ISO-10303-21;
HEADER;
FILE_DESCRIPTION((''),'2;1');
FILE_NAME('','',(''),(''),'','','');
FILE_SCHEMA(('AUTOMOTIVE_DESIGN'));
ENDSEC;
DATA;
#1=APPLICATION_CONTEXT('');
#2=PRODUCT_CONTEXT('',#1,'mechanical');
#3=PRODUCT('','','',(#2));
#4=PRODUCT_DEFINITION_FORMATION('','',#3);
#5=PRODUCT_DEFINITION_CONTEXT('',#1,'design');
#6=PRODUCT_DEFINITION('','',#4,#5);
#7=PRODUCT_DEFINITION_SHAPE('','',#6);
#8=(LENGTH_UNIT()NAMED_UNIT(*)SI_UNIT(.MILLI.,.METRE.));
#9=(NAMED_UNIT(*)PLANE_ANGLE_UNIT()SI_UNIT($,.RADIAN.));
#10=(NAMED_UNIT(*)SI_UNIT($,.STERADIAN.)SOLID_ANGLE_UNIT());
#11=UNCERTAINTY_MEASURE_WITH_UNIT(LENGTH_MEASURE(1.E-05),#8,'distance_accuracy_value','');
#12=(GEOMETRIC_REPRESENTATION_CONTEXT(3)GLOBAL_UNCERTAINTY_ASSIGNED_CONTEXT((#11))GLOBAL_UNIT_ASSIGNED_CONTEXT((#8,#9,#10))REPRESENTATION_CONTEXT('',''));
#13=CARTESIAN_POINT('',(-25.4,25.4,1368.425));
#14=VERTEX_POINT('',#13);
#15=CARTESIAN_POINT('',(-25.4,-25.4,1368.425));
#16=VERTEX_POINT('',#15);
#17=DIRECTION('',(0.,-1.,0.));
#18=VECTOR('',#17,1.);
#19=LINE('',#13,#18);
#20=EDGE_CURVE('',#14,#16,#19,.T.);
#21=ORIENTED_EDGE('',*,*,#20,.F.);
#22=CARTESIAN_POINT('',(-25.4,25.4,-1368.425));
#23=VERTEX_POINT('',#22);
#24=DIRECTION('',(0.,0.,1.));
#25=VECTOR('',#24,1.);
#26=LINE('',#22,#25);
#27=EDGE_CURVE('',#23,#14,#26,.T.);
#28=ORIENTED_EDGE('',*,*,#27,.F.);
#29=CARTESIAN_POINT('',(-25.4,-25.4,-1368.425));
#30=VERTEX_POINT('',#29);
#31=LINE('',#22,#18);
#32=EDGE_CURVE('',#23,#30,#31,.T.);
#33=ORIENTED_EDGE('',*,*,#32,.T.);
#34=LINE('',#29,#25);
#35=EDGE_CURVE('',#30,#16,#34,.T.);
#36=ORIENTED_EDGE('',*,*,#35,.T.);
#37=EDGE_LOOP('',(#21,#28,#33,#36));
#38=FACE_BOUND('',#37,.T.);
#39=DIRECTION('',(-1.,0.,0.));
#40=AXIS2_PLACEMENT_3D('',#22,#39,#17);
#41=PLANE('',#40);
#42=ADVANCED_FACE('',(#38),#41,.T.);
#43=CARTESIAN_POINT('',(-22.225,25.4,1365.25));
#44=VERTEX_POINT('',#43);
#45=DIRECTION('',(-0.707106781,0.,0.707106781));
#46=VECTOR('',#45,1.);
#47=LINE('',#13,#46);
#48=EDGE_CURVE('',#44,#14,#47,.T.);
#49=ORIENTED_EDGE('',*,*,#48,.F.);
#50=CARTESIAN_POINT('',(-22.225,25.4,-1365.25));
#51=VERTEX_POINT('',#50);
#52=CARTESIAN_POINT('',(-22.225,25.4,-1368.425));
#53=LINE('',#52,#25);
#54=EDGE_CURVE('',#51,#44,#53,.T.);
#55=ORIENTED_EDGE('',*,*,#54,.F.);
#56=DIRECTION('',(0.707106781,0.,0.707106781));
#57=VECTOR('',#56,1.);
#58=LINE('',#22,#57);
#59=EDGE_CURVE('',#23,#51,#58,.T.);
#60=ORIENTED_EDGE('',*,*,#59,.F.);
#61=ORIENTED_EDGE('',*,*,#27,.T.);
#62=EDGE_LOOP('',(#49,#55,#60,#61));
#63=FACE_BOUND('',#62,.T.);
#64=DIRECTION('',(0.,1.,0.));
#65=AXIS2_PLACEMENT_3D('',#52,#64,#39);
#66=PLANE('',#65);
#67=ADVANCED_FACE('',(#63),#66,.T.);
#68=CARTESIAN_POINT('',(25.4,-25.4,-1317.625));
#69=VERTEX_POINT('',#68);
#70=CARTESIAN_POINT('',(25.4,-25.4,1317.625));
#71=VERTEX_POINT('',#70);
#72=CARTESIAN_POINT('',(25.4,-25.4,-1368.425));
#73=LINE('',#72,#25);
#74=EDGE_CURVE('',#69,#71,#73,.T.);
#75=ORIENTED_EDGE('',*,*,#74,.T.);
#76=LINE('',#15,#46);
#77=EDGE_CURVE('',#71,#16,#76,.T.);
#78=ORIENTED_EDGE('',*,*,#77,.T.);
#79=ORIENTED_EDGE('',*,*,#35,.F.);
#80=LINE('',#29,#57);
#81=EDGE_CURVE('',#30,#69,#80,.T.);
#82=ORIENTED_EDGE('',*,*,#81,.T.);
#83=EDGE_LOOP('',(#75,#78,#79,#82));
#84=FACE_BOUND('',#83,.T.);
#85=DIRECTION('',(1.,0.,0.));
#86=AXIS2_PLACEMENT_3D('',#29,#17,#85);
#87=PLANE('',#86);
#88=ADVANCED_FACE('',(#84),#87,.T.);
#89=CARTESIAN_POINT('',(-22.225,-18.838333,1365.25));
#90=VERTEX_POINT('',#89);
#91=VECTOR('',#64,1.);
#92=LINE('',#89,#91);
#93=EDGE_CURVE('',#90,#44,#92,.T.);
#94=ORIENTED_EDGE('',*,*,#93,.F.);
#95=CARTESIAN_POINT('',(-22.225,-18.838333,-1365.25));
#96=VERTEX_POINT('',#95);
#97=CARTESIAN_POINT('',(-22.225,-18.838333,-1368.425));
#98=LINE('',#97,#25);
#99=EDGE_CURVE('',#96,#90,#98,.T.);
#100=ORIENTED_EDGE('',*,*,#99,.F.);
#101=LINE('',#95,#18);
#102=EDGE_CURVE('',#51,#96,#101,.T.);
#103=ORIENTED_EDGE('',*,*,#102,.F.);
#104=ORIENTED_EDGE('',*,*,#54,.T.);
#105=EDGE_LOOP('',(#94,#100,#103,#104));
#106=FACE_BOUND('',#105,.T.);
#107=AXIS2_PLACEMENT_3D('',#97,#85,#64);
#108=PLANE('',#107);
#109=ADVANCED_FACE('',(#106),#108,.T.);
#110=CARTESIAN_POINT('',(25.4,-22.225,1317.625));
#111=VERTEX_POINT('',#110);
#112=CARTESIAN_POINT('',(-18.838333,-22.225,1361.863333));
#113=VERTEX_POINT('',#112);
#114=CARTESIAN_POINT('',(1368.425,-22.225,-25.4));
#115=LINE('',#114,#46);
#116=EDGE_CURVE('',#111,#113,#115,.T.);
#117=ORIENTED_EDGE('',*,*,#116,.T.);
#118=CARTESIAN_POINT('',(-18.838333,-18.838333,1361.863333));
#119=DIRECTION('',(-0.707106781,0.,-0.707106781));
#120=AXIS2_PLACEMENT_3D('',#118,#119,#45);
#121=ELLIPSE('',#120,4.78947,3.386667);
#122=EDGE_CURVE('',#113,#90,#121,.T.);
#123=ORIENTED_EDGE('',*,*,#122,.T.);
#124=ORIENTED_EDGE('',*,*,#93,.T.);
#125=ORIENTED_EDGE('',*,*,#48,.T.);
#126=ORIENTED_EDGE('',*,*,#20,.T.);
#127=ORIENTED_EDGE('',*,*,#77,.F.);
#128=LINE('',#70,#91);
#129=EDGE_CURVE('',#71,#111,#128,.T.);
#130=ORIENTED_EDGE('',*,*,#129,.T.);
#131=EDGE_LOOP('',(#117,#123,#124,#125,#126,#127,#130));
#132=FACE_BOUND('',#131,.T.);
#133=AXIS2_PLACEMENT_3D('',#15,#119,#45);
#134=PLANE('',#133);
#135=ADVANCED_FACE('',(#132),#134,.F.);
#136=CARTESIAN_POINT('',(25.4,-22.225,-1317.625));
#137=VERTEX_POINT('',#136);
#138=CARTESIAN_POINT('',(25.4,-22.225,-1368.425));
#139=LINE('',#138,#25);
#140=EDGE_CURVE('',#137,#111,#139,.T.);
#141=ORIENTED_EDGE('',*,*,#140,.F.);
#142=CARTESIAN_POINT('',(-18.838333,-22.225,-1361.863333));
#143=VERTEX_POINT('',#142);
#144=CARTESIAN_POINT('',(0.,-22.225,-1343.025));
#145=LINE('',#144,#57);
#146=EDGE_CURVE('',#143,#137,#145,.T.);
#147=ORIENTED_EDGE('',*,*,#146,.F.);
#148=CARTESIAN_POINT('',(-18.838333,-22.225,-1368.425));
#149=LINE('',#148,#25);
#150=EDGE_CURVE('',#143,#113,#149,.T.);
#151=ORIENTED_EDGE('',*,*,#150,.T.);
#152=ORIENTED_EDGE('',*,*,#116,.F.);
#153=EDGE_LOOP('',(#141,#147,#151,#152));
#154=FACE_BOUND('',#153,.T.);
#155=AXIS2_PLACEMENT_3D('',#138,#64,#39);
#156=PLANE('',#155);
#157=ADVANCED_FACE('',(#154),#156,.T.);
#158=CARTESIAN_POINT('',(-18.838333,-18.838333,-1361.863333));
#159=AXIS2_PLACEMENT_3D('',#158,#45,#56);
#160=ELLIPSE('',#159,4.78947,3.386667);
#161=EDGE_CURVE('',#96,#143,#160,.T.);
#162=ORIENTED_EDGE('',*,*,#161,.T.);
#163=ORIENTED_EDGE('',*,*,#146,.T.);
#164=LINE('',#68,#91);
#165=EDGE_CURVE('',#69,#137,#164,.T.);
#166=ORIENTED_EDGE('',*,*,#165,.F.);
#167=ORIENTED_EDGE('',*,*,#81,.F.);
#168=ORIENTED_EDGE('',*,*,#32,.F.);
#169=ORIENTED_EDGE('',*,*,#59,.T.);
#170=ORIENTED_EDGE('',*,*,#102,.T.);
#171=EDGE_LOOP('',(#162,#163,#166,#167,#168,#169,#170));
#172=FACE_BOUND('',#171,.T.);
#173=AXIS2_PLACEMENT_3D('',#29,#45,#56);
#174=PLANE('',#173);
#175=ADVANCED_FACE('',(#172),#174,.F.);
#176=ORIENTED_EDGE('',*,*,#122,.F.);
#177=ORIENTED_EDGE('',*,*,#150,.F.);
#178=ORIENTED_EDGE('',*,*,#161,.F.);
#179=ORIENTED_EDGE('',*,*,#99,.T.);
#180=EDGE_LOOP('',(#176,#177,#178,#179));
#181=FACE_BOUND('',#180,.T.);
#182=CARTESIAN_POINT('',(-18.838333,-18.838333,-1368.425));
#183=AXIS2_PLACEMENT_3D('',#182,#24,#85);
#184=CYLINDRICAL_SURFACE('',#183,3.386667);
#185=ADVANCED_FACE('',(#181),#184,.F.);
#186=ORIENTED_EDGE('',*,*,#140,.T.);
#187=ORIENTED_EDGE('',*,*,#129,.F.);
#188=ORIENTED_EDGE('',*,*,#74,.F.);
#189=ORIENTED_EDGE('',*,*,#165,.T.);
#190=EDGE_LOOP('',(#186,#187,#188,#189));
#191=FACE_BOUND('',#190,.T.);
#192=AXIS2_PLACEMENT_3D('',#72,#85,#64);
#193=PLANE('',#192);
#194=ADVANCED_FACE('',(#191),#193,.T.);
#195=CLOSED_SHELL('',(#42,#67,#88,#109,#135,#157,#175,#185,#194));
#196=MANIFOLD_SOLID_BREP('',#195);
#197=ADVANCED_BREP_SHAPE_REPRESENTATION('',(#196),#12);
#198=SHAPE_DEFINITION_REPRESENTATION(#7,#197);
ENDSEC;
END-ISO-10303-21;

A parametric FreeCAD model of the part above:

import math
import FreeCAD as App
import Part
import Sketcher

V = App.Vector
Q = App.Units.Quantity


def add_polygon(sketch, points):
    """Adds a closed chain of lines whose ends are joined by coincident constraints."""
    first, n = sketch.GeometryCount, len(points)
    for a, b in zip(points, points[1:] + points[:1]):
        sketch.addGeometry(Part.LineSegment(App.Vector(*a, 0), App.Vector(*b, 0)), False)
    for i in range(n):
        sketch.addConstraint(Sketcher.Constraint("Coincident", first + i, 2, first + (i + 1) % n, 1))

doc = App.newDocument("Part")
body = doc.addObject("PartDesign::Body", "Body")

# Sketch on XY plane
sketch1 = body.newObject("Sketcher::SketchObject", "Sketch")
sketch1.AttachmentSupport = (doc.getObject("XY_Plane"), [""])
sketch1.MapMode = "FlatFace"
sketch1.addGeometry([
    Part.LineSegment(V(-22.225, -18.838333, 0), V(-22.225, 25.4, 0)),  # 0
    Part.LineSegment(V(-22.225, 25.4, 0), V(-25.4, 25.4, 0)),  # 1
    Part.LineSegment(V(-25.4, 25.4, 0), V(-25.4, -25.4, 0)),  # 2
    Part.LineSegment(V(-25.4, -25.4, 0), V(25.4, -25.4, 0)),  # 3
    Part.LineSegment(V(25.4, -25.4, 0), V(25.4, -22.225, 0)),  # 4
    Part.LineSegment(V(25.4, -22.225, 0), V(-18.838333, -22.225, 0)),  # 5
    Part.ArcOfCircle(Part.Circle(V(-18.838333, -18.838333, 0), V(0, 0, 1), 3.386667), math.radians(180), math.radians(270)),  # 6
], False)
sketch1.addConstraint([
    Sketcher.Constraint("Coincident", 0, 2, 1, 1),
    Sketcher.Constraint("Coincident", 1, 2, 2, 1),
    Sketcher.Constraint("Coincident", 2, 2, 3, 1),
    Sketcher.Constraint("Coincident", 3, 2, 4, 1),
    Sketcher.Constraint("Coincident", 4, 2, 5, 1),
    Sketcher.Constraint("Tangent", 5, 2, 6, 2),
    Sketcher.Constraint("Tangent", 6, 1, 0, 1),
    Sketcher.Constraint("Vertical", 0),
    Sketcher.Constraint("Horizontal", 1),
    Sketcher.Constraint("Vertical", 2),
    Sketcher.Constraint("Horizontal", 3),
    Sketcher.Constraint("Vertical", 4),
    Sketcher.Constraint("Horizontal", 5),
    Sketcher.Constraint("Symmetric", 1, 2, 3, 2, -1, 1),
    Sketcher.Constraint("Equal", 5, 0),
    Sketcher.Constraint("Equal", 3, 2),
    Sketcher.Constraint("DistanceX", 3, 1, 3, 2, Q("2 in")),
    Sketcher.Constraint("DistanceX", 1, 2, 1, 1, Q("0.125 in")),
    Sketcher.Constraint("Radius", 6, Q("3.386667 mm")),
])
pad1 = body.newObject("PartDesign::Pad", "Pad")
pad1.Profile = sketch1
pad1.Type = "TwoLengths"
pad1.Length = Q("53.875 in")
pad1.Length2 = Q("53.875 in")

# Sketch on XZ plane
sketch2 = body.newObject("Sketcher::SketchObject", "Sketch001")
sketch2.AttachmentSupport = (doc.getObject("XZ_Plane"), [""])
sketch2.MapMode = "FlatFace"
sketch2.AttachmentOffset = App.Placement(V(0, 0, 0.875 * 25.4), App.Rotation())
add_polygon(sketch2, [(-25.4, -1368.425), (25.4, -1317.625), (25.4, -1368.425)])  # lines 0-2
add_polygon(sketch2, [(-25.4, 1368.425), (25.4, 1368.425), (25.4, 1317.625)])  # lines 3-5
sketch2.addConstraint([
    Sketcher.Constraint("Vertical", 1),
    Sketcher.Constraint("Horizontal", 2),
    Sketcher.Constraint("Horizontal", 3),
    Sketcher.Constraint("Vertical", 4),
    Sketcher.Constraint("Symmetric", 2, 2, 3, 2, -1, 1),
    Sketcher.Constraint("Symmetric", 0, 2, 4, 2, -1),
    Sketcher.Constraint("Perpendicular", 0, 5),
    Sketcher.Constraint("Vertical", 2, 2, 5, 2),
    Sketcher.Constraint("DistanceX", 2, 2, 2, 1, Q("2 in")),
    Sketcher.Constraint("DistanceY", 0, 2, 3, 2, Q("105.75 in")),
])
pocket1 = body.newObject("PartDesign::Pocket", "Pocket")
pocket1.Profile = sketch2
pocket1.Type = "ThroughAll"
pocket1.Midplane = True

doc.recompute()
